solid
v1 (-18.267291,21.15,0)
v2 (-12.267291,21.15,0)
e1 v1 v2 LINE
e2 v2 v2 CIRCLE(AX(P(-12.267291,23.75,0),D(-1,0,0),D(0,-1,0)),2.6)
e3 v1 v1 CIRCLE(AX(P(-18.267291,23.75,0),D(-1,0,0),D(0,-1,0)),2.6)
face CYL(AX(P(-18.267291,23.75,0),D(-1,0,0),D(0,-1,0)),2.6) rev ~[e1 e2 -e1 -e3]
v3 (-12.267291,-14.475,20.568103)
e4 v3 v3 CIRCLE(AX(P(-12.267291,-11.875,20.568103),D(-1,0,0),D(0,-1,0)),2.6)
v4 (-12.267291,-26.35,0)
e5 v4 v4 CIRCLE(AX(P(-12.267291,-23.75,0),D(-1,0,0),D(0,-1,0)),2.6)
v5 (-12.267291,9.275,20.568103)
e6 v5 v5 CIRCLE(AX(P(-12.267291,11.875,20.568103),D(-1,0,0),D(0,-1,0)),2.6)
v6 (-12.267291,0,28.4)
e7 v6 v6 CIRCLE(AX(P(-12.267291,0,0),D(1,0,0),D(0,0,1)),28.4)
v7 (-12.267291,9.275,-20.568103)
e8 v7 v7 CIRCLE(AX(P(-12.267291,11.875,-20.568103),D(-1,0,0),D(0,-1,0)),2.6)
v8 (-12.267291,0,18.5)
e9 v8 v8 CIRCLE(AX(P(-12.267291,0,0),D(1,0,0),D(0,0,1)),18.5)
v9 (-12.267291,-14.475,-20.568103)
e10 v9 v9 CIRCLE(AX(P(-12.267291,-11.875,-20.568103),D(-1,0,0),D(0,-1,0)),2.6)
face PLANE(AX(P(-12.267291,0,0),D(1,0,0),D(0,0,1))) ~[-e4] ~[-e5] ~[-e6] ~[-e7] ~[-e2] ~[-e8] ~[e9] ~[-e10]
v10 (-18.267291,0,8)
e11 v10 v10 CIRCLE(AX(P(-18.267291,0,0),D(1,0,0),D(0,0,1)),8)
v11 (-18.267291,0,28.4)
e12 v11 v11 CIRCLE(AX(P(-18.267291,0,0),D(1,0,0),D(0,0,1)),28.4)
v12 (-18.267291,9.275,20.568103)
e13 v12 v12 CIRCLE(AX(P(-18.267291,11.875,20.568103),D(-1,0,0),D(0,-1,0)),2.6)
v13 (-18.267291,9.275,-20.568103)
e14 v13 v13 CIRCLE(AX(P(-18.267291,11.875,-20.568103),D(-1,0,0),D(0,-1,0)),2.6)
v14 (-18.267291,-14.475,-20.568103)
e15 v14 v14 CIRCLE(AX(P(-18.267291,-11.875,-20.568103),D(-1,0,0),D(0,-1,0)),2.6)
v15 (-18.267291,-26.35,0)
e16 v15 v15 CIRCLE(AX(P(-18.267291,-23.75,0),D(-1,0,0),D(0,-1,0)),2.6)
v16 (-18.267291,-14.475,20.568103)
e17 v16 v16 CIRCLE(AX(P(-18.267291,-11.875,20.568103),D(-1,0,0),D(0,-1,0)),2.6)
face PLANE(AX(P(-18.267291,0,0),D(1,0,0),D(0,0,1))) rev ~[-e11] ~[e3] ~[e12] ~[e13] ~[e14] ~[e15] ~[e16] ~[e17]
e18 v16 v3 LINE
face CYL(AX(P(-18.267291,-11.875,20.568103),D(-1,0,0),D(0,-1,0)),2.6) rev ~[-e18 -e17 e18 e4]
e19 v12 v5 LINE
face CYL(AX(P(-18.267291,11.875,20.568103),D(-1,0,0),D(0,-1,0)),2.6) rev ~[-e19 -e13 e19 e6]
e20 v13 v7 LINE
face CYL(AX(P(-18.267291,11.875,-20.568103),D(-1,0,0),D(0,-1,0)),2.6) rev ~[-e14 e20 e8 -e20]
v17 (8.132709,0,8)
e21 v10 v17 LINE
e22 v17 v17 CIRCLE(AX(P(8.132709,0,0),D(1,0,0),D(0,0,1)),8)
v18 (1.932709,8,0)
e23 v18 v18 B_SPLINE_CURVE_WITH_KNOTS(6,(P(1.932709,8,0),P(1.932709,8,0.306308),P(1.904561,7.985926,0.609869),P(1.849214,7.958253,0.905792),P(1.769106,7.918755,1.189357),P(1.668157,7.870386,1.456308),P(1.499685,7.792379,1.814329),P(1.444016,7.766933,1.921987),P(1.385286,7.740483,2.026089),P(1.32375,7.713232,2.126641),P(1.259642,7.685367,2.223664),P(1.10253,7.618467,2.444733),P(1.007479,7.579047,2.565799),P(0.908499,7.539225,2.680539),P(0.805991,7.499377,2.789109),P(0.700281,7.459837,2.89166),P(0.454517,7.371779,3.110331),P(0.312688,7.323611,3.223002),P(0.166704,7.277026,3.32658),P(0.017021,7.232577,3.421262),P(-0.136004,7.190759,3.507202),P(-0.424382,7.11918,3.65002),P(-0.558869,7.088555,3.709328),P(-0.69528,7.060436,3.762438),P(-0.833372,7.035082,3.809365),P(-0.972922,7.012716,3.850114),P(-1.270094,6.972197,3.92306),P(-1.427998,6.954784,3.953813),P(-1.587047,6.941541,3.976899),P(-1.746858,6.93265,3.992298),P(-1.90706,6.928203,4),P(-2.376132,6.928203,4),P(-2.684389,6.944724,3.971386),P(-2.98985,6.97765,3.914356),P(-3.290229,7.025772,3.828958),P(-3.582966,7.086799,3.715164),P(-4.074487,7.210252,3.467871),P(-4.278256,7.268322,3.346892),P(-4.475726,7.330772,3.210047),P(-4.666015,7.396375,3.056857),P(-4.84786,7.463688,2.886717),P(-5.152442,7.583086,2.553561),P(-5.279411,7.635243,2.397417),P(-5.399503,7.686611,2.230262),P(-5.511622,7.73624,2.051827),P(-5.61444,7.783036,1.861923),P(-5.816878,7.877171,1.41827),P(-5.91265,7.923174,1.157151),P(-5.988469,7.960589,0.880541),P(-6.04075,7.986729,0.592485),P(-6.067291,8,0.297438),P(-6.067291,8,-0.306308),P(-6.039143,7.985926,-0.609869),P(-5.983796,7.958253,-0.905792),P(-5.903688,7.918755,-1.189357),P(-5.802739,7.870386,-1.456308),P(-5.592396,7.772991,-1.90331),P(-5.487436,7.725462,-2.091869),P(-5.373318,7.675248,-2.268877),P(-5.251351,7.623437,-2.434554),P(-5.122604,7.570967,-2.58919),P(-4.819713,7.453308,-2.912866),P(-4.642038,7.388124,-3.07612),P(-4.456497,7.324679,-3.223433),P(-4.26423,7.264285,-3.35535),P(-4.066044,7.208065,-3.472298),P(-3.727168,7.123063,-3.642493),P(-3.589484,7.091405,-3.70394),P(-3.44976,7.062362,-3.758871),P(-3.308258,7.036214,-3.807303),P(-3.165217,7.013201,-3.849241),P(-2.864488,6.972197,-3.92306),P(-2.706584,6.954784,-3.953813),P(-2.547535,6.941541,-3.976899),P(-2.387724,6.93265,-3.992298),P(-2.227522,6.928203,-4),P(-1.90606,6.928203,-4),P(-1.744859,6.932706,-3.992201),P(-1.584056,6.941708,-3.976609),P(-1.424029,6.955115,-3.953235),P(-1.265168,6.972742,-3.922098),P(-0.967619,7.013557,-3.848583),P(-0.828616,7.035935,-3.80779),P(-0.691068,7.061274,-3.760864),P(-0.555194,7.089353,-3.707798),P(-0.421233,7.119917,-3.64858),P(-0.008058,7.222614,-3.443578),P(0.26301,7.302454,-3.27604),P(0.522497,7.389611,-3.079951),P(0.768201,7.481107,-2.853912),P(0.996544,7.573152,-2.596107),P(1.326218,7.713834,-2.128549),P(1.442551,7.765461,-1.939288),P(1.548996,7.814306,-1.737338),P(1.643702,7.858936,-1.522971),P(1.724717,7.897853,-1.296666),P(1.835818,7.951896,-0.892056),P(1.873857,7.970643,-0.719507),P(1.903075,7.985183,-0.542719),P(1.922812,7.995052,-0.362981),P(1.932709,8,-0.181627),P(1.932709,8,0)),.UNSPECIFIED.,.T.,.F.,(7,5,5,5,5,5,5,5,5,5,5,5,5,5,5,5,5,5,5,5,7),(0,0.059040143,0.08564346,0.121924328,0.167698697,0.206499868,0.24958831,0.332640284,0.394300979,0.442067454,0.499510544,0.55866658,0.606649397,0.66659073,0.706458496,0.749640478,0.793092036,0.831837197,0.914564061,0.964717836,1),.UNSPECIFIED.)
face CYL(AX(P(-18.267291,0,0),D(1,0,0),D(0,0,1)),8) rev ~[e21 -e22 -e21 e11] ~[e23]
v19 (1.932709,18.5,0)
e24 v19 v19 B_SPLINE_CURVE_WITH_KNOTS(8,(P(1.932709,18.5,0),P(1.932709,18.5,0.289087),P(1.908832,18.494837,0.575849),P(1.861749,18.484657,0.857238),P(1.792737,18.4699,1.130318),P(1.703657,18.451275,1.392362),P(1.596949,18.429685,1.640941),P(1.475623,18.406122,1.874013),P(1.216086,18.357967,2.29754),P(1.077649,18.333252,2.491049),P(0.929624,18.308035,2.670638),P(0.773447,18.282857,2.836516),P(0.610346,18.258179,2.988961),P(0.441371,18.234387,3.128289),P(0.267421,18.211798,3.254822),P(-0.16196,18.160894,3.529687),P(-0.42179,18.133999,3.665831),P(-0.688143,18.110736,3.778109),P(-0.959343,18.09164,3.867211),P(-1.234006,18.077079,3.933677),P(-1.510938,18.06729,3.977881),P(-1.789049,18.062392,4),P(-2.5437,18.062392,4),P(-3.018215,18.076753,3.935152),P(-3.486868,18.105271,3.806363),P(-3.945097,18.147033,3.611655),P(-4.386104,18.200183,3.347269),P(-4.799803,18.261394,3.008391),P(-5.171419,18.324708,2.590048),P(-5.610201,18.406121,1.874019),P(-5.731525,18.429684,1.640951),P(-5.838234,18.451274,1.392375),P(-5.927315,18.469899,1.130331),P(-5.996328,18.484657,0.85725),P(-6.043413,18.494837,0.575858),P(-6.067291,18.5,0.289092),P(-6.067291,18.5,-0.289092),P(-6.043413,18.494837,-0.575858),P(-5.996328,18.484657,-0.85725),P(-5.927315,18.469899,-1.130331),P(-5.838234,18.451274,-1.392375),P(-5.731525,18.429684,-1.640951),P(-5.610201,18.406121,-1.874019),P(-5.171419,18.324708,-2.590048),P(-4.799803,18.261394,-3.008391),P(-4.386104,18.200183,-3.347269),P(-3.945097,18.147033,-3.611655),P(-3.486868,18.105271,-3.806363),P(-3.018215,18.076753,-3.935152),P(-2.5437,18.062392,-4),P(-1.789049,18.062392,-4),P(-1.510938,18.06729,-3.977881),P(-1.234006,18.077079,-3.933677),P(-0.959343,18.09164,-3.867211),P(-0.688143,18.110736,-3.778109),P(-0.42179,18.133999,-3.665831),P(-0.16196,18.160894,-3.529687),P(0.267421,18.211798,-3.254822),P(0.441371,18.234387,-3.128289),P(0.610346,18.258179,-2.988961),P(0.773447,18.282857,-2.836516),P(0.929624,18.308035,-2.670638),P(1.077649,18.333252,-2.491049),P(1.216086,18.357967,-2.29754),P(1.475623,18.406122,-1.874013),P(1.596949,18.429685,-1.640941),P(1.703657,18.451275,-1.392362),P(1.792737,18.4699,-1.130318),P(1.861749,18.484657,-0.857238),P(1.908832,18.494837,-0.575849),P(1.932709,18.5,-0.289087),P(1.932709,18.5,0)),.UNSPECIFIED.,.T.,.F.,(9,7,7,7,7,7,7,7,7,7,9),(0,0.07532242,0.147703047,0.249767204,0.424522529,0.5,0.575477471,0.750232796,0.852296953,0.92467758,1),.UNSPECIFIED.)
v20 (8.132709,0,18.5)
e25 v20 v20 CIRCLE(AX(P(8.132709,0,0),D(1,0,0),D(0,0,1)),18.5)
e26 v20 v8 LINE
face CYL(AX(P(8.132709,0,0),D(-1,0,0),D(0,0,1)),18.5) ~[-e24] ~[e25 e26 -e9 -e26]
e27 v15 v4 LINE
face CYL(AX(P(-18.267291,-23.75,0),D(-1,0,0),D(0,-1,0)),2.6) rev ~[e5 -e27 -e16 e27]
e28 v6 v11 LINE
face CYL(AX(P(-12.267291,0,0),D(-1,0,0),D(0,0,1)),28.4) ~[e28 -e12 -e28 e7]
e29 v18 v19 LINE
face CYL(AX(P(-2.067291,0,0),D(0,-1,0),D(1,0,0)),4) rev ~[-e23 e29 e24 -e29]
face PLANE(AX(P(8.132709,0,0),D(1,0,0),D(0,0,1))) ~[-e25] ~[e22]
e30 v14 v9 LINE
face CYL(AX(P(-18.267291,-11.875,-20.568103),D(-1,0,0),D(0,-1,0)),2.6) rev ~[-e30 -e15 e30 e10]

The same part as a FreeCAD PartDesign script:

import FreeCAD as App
import Part
import Sketcher
from FreeCAD import Vector
Q = App.Units.Quantity


def add_polygon(sketch, points):
    """Adds a closed chain of lines whose ends are joined by coincident constraints."""
    first, n = sketch.GeometryCount, len(points)
    for a, b in zip(points, points[1:] + points[:1]):
        sketch.addGeometry(Part.LineSegment(App.Vector(*a, 0), App.Vector(*b, 0)), False)
    for i in range(n):
        sketch.addConstraint(Sketcher.Constraint("Coincident", first + i, 2, first + (i + 1) % n, 1))

doc = App.newDocument("Part")
body = doc.addObject("PartDesign::Body", "Body")

# Sketch on XZ plane
sketch1 = body.newObject("Sketcher::SketchObject", "Sketch")
sketch1.AttachmentSupport = (doc.getObject("XZ_Plane"), [""])
sketch1.MapMode = "FlatFace"
add_polygon(sketch1, [(-18.267291, 28.4), (-18.267291, 8), (8.132709, 8), (8.132709, 18.5), (-12.267291, 18.5), (-12.267291, 28.4)])  # lines 0-5
sketch1.addConstraint([
    Sketcher.Constraint("Vertical", 0),
    Sketcher.Constraint("Horizontal", 1),
    Sketcher.Constraint("Vertical", 2),
    Sketcher.Constraint("Horizontal", 3),
    Sketcher.Constraint("Vertical", 4),
    Sketcher.Constraint("Horizontal", 5),
    Sketcher.Constraint("Equal", 3, 0),
    Sketcher.Constraint("DistanceX", 5, 2, 5, 1, Q("6 mm")),
    Sketcher.Constraint("DistanceX", 1, 1, 1, 2, Q("26.4 mm")),
    Sketcher.Constraint("DistanceY", 2, 1, 2, 2, Q("10.5 mm")),
    Sketcher.Constraint("DistanceY", -1, 1, 0, 2, Q("8 mm")),
    Sketcher.Constraint("DistanceX", 0, 2, -1, 1, Q("18.267291 mm")),
])
revolution = body.newObject("PartDesign::Revolution", "Revolution")
revolution.Profile = sketch1
revolution.ReferenceAxis = (sketch1, ["H_Axis"])
revolution.Angle = 360

# Sketch on YZ plane
sketch2 = body.newObject("Sketcher::SketchObject", "Sketch001")
sketch2.AttachmentSupport = (doc.getObject("YZ_Plane"), [""])
sketch2.MapMode = "FlatFace"
sketch2.AttachmentOffset = App.Placement(Vector(0, 0, -18.267291), App.Rotation())
sketch2.addGeometry([
    Part.Circle(Vector(23.75, 0, 0), Vector(0, 0, 1), 2.6),  # 0
    Part.Circle(Vector(11.875, -20.568103, 0), Vector(0, 0, 1), 2.6),  # 1
    Part.Circle(Vector(-11.875, -20.568103, 0), Vector(0, 0, 1), 2.6),  # 2
    Part.Circle(Vector(-23.75, 0, 0), Vector(0, 0, 1), 2.6),  # 3
    Part.Circle(Vector(-11.875, 20.568103, 0), Vector(0, 0, 1), 2.6),  # 4
    Part.Circle(Vector(11.875, 20.568103, 0), Vector(0, 0, 1), 2.6),  # 5
], False)
sketch2.addConstraint([
    Sketcher.Constraint("Equal", 0, 1),
    Sketcher.Constraint("Equal", 1, 2),
    Sketcher.Constraint("Equal", 2, 3),
    Sketcher.Constraint("Equal", 3, 4),
    Sketcher.Constraint("Equal", 4, 5),
    Sketcher.Constraint("Symmetric", 0, 3, 3, 3, -1, 1),
    Sketcher.Constraint("Symmetric", 1, 3, 4, 3, -1, 1),
    Sketcher.Constraint("Symmetric", 2, 3, 5, 3, -1, 1),
    Sketcher.Constraint("Symmetric", 1, 3, 2, 3, -2),
    Sketcher.Constraint("PointOnObject", 0, 3, -1),
    Sketcher.Constraint("Diameter", 0, Q("5.2 mm")),
    Sketcher.Constraint("DistanceX", 3, 3, 0, 3, Q("47.5 mm")),
    Sketcher.Constraint("DistanceX", 2, 3, 1, 3, Q("23.75 mm")),
    Sketcher.Constraint("DistanceY", 1, 3, -1, 1, Q("20.568103 mm")),
])
pocket1 = body.newObject("PartDesign::Pocket", "Pocket")
pocket1.Profile = sketch2
pocket1.Type = "ThroughAll"
pocket1.Reversed = True

# Sketch on XZ plane
sketch3 = body.newObject("Sketcher::SketchObject", "Sketch002")
sketch3.AttachmentSupport = (doc.getObject("XZ_Plane"), [""])
sketch3.MapMode = "FlatFace"
sketch3.addGeometry(Part.Circle(Vector(-2.067291, 0, 0), Vector(0, 0, 1), 4), False)
sketch3.addConstraint([
    Sketcher.Constraint("PointOnObject", 0, 3, -1),
    Sketcher.Constraint("Diameter", 0, Q("8 mm")),
    Sketcher.Constraint("DistanceX", 0, 3, -1, 1, Q("2.067291 mm")),
])
pocket2 = body.newObject("PartDesign::Pocket", "Pocket001")
pocket2.Profile = sketch3
pocket2.Type = "ThroughAll"

doc.recompute()
